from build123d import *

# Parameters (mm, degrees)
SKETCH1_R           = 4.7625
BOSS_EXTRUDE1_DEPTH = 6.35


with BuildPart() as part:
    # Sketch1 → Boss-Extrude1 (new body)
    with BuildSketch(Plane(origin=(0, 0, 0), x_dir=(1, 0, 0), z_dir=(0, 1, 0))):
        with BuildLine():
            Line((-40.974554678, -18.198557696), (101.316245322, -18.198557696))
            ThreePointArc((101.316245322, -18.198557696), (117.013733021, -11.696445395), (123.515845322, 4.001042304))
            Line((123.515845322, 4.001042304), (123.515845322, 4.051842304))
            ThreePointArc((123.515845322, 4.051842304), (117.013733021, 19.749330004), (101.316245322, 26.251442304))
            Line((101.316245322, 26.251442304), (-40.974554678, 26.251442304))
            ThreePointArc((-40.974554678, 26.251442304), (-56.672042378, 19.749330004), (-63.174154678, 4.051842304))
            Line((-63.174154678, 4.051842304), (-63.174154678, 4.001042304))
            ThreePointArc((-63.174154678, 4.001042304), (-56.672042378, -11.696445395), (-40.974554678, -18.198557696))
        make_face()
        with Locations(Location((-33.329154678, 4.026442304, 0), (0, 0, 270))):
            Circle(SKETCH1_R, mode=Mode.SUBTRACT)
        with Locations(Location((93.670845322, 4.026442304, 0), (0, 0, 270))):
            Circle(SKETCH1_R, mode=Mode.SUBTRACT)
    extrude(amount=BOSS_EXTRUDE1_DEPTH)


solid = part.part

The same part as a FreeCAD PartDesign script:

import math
import FreeCAD as App
import Part
import Sketcher
Q = App.Units.Quantity

doc = App.newDocument("Part")
params = doc.addObject("Spreadsheet::Sheet", "Params")
for row, (alias, value) in enumerate([
    ("sketch1_diameter", "0.375 in"),
    ("sketch1_radius", "0.874 in"),
    ("sketch1_width", "5.602 in"),
    ("sketch1_height", "0.002 in"),
    ("pad1_length", "0.25 in"),
], start=1):
    params.set(f"A{row}", alias)
    params.set(f"B{row}", "=" + value)
    params.setAlias(f"B{row}", alias)

body = doc.addObject("PartDesign::Body", "Body")

sketch1 = body.newObject("Sketcher::SketchObject", "Sketch")
sketch1.AttachmentSupport = (doc.getObject("XZ_Plane"), [""])
sketch1.MapMode = "FlatFace"
sketch1.addGeometry([
    Part.LineSegment(App.Vector(-40.97, 18.2, 0), App.Vector(101.32, 18.2, 0)),
    Part.ArcOfCircle(Part.Circle(App.Vector(101.32, -4, 0), App.Vector(0, 0, 1), 22.2), math.radians(0), math.radians(90)),
    Part.LineSegment(App.Vector(123.52, -4, 0), App.Vector(123.52, -4.05, 0)),
    Part.ArcOfCircle(Part.Circle(App.Vector(101.32, -4.05, 0), App.Vector(0, 0, 1), 22.2), math.radians(-90), math.radians(0)),
    Part.LineSegment(App.Vector(101.32, -26.25, 0), App.Vector(-40.97, -26.25, 0)),
    Part.ArcOfCircle(Part.Circle(App.Vector(-40.97, -4.05, 0), App.Vector(0, 0, 1), 22.2), math.radians(180), math.radians(270)),
    Part.LineSegment(App.Vector(-63.17, -4.05, 0), App.Vector(-63.17, -4, 0)),
    Part.ArcOfCircle(Part.Circle(App.Vector(-40.97, -4, 0), App.Vector(0, 0, 1), 22.2), math.radians(90), math.radians(180)),
    Part.Circle(App.Vector(-33.33, -4.03, 0), App.Vector(0, 0, 1), 4.76),
    Part.Circle(App.Vector(93.67, -4.03, 0), App.Vector(0, 0, 1), 4.76),
], False)
sketch1.addConstraint([
    Sketcher.Constraint("Tangent", 0, 2, 1, 2),
    Sketcher.Constraint("Tangent", 1, 1, 2, 1),
    Sketcher.Constraint("Tangent", 2, 2, 3, 2),
    Sketcher.Constraint("Tangent", 3, 1, 4, 1),
    Sketcher.Constraint("Tangent", 4, 2, 5, 2),
    Sketcher.Constraint("Tangent", 5, 1, 6, 1),
    Sketcher.Constraint("Tangent", 6, 2, 7, 2),
    Sketcher.Constraint("Tangent", 7, 1, 0, 1),
    Sketcher.Constraint("Horizontal", 0),
    Sketcher.Constraint("Horizontal", 4),
    Sketcher.Constraint("Equal", 1, 3),
    Sketcher.Constraint("Equal", 3, 5),
    Sketcher.Constraint("Equal", 5, 7),
    Sketcher.Constraint("Equal", 8, 9),
    Sketcher.Constraint("Horizontal", 8, 3, 9, 3),
    Sketcher.Constraint("Horizontal", 7, 3, 1, 1),
    Sketcher.Constraint("Horizontal", 2, 2, 5, 1),
    Sketcher.Constraint("Diameter", 8, Q("0.375 in")),
    Sketcher.Constraint("Radius", 1, Q("0.874 in")),
    Sketcher.Constraint("DistanceX", 8, 3, 9, 3, Q("5 in")),
    Sketcher.Constraint("DistanceX", 0, 1, 0, 2, Q("5.602 in")),
    Sketcher.Constraint("DistanceY", 2, 2, 2, 1, Q("0.002 in")),
    Sketcher.Constraint("DistanceX", 7, 3, 8, 3, Q("0.301 in")),
    Sketcher.Constraint("DistanceY", 8, 3, 7, 3, Q("0.001 in")),
    Sketcher.Constraint("DistanceX", -1, 1, 1, 3, Q("101.316245 mm")),
    Sketcher.Constraint("DistanceY", 1, 3, -1, 1, Q("4.001042 mm")),
])
sketch1.setExpression("Constraints[17]", "Params.sketch1_diameter")
sketch1.setExpression("Constraints[18]", "Params.sketch1_radius")
sketch1.setExpression("Constraints[20]", "Params.sketch1_width")
sketch1.setExpression("Constraints[21]", "Params.sketch1_height")
pad1 = body.newObject("PartDesign::Pad", "Pad")
pad1.Profile = sketch1
pad1.setExpression("Length", "Params.pad1_length")
pad1.Reversed = True

doc.recompute()
